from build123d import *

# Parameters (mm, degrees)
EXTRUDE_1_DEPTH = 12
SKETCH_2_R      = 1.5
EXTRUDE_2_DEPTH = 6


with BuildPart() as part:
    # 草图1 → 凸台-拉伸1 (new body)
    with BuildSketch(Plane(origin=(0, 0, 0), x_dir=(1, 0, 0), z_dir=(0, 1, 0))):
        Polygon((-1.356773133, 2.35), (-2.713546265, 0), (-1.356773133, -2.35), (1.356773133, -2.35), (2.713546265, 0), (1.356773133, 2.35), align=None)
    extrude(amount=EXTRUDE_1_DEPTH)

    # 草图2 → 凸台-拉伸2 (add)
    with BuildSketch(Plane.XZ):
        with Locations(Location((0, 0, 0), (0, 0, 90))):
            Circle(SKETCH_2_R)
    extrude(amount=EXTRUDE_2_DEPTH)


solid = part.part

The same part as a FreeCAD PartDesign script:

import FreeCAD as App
import Part
import Sketcher

V = App.Vector
Q = App.Units.Quantity

doc = App.newDocument("Part")
params = doc.addObject("Spreadsheet::Sheet", "Params")
for row, (alias, value) in enumerate([
    ("pad1_length", "12 mm"),
    ("sketch2_diameter", "3 mm"),
    ("pad2_length", "6 mm"),
], start=1):
    params.set(f"A{row}", alias)
    params.set(f"B{row}", "=" + value)
    params.setAlias(f"B{row}", alias)

body = doc.addObject("PartDesign::Body", "Body")

# Sketch on XZ plane
sketch1 = body.newObject("Sketcher::SketchObject", "Sketch")
sketch1.AttachmentSupport = (doc.getObject("XZ_Plane"), [""])
sketch1.MapMode = "FlatFace"
sketch1.addGeometry([
    Part.LineSegment(V(-1.356773, -2.35, 0), V(-2.713546, 0, 0)),  # 0
    Part.LineSegment(V(-2.713546, 0, 0), V(-1.356773, 2.35, 0)),  # 1
    Part.LineSegment(V(-1.356773, 2.35, 0), V(1.356773, 2.35, 0)),  # 2
    Part.LineSegment(V(1.356773, 2.35, 0), V(2.713546, 0, 0)),  # 3
    Part.LineSegment(V(2.713546, 0, 0), V(1.356773, -2.35, 0)),  # 4
    Part.LineSegment(V(1.356773, -2.35, 0), V(-1.356773, -2.35, 0)),  # 5
], False)
sketch1.addConstraint([
    Sketcher.Constraint("Coincident", 0, 2, 1, 1),
    Sketcher.Constraint("Coincident", 1, 2, 2, 1),
    Sketcher.Constraint("Coincident", 2, 2, 3, 1),
    Sketcher.Constraint("Coincident", 3, 2, 4, 1),
    Sketcher.Constraint("Coincident", 4, 2, 5, 1),
    Sketcher.Constraint("Coincident", 5, 2, 0, 1),
    Sketcher.Constraint("Horizontal", 2),
    Sketcher.Constraint("Horizontal", 5),
    Sketcher.Constraint("Symmetric", 0, 2, 3, 2, -1, 1),
    Sketcher.Constraint("Symmetric", 1, 2, 4, 2, -1, 1),
    Sketcher.Constraint("PointOnObject", 0, 2, -1),
    Sketcher.Constraint("Parallel", 0, 3),
    Sketcher.Constraint("Vertical", 2, 2, 4, 2),
    Sketcher.Constraint("Angle", 0, Q("120 deg")),
    Sketcher.Constraint("DistanceY", 4, 2, 2, 2, Q("4.7 mm")),
    Sketcher.Constraint("DistanceX", 2, 1, 2, 2, Q("2.713546 mm")),
])
pad1 = body.newObject("PartDesign::Pad", "Pad")
pad1.Profile = sketch1
pad1.setExpression("Length", "Params.pad1_length")
pad1.Reversed = True

# Sketch on XZ plane
sketch2 = body.newObject("Sketcher::SketchObject", "Sketch001")
sketch2.AttachmentSupport = (doc.getObject("XZ_Plane"), [""])
sketch2.MapMode = "FlatFace"
sketch2.addGeometry(Part.Circle(V(0, 0, 0), V(0, 0, 1), 1.5), False)
sketch2.addConstraint([
    Sketcher.Constraint("Coincident", 0, 3, -1, 1),
    Sketcher.Constraint("Diameter", 0, Q("3 mm")),
])
sketch2.setExpression("Constraints[1]", "Params.sketch2_diameter")
pad2 = body.newObject("PartDesign::Pad", "Pad001")
pad2.Profile = sketch2
pad2.setExpression("Length", "Params.pad2_length")

doc.recompute()
